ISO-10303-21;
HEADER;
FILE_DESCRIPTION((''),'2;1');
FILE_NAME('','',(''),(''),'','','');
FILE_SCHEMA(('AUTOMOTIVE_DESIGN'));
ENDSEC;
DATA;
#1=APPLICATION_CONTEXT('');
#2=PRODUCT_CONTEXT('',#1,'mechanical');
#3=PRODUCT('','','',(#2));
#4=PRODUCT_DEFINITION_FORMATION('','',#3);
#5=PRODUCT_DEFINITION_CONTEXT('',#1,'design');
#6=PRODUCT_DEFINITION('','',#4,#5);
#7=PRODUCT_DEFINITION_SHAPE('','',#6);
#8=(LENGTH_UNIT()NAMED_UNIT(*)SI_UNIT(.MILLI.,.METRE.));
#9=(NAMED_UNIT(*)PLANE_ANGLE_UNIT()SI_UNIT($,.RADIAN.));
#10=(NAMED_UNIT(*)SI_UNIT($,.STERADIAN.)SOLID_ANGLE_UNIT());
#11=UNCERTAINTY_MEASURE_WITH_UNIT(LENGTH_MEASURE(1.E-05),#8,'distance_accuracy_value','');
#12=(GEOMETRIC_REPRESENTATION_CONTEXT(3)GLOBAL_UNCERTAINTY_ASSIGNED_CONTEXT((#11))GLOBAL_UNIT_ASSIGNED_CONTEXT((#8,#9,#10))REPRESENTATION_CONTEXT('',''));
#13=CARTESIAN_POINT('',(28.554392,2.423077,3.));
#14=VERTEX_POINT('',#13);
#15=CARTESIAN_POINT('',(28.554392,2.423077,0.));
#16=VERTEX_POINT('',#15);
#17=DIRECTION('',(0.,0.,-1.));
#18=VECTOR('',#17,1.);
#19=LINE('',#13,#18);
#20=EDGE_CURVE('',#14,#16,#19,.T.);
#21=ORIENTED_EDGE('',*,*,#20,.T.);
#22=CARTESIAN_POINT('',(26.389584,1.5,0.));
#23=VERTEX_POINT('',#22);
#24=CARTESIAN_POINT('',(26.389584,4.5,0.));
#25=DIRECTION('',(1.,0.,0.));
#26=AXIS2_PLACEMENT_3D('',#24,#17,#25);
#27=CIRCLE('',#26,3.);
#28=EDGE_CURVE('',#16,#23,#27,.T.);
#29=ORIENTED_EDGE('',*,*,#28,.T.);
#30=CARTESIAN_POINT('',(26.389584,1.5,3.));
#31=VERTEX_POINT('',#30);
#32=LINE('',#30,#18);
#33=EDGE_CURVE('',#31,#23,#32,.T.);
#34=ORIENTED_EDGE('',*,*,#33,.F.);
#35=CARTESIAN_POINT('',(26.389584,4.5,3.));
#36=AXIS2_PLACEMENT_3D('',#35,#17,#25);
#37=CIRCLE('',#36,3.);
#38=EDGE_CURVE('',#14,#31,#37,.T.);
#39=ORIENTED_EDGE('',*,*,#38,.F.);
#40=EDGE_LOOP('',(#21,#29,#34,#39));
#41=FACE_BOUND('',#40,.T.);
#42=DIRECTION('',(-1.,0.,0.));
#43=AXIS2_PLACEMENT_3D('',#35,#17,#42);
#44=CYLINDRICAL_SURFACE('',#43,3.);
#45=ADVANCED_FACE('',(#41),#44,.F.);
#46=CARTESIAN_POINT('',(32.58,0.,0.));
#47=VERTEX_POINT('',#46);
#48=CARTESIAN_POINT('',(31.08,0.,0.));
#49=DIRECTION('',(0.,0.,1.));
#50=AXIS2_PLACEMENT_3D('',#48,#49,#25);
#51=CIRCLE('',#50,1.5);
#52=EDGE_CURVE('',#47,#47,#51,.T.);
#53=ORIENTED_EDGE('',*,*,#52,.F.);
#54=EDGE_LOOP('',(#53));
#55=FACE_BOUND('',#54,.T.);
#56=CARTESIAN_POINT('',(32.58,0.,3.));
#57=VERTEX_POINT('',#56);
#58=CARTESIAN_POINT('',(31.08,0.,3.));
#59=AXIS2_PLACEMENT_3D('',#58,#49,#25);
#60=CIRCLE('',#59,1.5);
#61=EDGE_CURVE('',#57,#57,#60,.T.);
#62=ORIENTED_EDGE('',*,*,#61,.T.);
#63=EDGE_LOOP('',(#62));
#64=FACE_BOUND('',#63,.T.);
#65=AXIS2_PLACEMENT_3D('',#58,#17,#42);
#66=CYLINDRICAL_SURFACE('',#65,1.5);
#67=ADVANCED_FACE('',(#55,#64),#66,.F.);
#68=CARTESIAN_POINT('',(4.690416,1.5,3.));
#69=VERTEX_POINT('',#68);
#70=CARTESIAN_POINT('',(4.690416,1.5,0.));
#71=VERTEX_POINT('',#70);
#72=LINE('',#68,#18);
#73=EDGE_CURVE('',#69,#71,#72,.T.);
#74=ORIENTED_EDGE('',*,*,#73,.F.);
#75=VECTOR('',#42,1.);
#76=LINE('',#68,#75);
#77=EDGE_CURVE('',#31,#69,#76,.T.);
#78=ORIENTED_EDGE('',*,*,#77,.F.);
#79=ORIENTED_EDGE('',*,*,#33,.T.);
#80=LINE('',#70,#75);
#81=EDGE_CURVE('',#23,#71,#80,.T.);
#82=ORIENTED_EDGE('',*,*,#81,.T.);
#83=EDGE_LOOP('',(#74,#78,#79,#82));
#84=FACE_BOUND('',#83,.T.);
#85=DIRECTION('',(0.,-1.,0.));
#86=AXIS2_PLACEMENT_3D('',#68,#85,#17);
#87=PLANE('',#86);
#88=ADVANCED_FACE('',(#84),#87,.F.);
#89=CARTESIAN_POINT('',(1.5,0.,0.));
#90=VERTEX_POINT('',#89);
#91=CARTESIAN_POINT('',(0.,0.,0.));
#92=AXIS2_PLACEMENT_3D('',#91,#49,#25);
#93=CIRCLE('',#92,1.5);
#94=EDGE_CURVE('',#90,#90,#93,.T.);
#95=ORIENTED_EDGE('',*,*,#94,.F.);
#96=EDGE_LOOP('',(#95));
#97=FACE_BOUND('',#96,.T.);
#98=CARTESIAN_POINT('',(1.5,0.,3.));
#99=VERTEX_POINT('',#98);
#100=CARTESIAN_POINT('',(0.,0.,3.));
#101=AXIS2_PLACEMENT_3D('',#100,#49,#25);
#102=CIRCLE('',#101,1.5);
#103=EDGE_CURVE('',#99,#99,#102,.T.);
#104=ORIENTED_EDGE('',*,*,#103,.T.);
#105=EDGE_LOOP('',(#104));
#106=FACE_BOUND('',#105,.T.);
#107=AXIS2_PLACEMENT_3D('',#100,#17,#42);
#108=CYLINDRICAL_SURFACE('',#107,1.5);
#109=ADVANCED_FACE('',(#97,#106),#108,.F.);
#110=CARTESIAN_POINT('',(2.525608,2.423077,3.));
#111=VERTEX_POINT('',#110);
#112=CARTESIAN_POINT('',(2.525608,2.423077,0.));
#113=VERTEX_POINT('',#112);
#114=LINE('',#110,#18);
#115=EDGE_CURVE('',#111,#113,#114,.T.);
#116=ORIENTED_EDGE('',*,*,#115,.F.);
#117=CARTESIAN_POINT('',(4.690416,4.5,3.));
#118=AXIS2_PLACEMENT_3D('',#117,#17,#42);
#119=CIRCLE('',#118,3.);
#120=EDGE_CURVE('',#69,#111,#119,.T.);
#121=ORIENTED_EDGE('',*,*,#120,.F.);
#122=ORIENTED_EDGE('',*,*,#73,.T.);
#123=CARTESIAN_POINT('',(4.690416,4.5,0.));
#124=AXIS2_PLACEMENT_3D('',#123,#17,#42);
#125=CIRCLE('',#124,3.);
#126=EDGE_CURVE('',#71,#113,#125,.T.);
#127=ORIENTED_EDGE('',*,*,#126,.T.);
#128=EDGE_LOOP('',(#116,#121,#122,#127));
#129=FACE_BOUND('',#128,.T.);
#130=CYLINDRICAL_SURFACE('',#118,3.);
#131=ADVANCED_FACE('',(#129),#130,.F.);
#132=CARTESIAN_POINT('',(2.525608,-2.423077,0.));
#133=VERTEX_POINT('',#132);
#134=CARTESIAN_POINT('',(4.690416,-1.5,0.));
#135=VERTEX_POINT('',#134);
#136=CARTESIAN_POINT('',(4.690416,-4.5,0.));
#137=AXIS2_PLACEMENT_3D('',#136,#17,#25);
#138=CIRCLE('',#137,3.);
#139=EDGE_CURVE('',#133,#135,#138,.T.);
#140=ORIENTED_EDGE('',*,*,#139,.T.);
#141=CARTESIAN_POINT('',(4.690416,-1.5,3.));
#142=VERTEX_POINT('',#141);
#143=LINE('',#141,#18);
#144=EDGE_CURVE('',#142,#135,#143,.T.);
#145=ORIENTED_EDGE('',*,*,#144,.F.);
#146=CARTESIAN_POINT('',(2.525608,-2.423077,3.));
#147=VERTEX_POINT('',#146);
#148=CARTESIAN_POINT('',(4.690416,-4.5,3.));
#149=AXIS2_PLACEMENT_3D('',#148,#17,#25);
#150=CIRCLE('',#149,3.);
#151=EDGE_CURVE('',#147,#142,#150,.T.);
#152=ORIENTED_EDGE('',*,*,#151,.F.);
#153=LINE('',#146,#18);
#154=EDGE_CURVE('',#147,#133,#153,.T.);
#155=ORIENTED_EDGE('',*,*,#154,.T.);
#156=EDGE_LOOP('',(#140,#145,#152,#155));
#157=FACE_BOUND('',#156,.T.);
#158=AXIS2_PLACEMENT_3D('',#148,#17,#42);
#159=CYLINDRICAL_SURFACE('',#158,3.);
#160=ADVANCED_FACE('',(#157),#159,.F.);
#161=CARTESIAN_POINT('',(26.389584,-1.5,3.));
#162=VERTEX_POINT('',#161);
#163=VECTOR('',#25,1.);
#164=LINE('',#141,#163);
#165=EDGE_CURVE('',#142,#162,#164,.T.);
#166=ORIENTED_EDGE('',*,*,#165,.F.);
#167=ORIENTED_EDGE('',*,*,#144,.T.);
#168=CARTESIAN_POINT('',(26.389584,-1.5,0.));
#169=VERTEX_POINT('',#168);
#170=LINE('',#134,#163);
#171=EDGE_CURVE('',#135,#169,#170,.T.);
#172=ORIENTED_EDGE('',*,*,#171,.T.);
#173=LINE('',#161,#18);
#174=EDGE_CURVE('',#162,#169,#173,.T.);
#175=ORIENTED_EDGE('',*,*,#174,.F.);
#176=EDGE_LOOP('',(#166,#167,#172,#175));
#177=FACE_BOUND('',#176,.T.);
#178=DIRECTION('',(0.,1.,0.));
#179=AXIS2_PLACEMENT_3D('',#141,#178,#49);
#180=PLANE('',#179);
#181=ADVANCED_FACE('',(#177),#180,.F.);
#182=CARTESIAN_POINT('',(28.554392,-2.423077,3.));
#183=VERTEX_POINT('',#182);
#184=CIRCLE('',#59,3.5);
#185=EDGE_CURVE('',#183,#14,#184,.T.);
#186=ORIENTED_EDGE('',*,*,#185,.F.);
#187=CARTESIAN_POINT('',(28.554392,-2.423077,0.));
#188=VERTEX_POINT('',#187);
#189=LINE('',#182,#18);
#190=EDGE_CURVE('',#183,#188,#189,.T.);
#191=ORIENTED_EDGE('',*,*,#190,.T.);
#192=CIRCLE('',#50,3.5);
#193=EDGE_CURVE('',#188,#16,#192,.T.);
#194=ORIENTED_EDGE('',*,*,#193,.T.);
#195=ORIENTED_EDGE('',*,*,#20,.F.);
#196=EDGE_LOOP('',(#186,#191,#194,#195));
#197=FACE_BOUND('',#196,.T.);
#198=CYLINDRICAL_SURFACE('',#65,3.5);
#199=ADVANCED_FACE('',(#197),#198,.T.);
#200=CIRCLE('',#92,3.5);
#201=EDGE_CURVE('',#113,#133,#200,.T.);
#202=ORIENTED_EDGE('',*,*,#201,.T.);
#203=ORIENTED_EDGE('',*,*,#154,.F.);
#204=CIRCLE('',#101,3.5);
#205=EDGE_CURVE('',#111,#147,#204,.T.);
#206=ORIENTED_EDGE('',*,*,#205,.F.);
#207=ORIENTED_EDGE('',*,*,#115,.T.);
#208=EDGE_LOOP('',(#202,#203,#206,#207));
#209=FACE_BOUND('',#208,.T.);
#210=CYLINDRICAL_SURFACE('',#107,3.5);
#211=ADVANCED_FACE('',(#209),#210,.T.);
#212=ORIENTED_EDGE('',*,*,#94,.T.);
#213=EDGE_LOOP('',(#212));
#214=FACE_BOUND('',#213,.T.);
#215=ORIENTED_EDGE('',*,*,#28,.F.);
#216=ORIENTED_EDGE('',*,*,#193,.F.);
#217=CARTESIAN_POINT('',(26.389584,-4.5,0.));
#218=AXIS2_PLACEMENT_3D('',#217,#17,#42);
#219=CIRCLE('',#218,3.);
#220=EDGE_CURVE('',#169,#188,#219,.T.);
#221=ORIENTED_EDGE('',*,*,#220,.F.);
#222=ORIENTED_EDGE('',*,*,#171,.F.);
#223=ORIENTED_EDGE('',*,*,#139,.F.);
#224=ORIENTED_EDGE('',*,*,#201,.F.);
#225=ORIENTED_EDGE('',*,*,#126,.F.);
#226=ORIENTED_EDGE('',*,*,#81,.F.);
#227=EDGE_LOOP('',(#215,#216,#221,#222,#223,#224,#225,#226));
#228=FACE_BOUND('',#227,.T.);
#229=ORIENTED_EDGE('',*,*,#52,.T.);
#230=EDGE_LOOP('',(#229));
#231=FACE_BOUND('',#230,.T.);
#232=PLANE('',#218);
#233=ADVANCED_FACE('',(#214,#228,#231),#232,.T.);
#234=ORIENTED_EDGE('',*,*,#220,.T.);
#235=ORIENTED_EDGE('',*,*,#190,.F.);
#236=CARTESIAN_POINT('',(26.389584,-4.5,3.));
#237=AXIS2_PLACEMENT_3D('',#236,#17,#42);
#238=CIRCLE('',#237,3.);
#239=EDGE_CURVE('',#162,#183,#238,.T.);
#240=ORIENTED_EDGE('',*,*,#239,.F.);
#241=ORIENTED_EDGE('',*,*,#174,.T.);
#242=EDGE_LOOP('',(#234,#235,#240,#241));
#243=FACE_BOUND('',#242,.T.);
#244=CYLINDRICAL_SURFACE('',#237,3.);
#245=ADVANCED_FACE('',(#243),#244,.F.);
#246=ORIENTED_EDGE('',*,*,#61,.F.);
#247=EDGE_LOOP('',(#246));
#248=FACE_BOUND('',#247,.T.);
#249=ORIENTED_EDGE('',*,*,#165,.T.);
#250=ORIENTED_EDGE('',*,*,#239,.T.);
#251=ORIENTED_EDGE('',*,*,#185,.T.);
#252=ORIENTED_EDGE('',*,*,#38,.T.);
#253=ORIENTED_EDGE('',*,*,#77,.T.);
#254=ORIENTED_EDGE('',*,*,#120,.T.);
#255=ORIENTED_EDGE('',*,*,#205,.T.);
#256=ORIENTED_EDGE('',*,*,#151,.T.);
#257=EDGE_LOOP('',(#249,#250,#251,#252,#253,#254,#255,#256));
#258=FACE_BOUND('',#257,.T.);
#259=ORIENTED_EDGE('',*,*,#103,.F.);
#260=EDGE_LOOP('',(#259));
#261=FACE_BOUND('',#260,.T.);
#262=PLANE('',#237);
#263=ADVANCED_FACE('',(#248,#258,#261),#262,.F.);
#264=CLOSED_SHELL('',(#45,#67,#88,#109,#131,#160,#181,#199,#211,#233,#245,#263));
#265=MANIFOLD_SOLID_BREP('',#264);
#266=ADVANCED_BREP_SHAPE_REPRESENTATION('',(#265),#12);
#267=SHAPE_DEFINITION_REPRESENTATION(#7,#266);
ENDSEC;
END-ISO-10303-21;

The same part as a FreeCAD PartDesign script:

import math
import FreeCAD as App
import Part
import Sketcher

doc = App.newDocument("Part")
body = doc.addObject("PartDesign::Body", "Body")

# Sketch on XY plane
sketch1 = body.newObject("Sketcher::SketchObject", "Sketch")
sketch1.AttachmentSupport = (doc.getObject("XY_Plane"), [""])
sketch1.MapMode = "FlatFace"
sketch1.addGeometry(Part.LineSegment(App.Vector(26.389584, 1.5, 0), App.Vector(4.690416, 1.5, 0)), False)
sketch1.addGeometry(Part.ArcOfCircle(Part.Circle(App.Vector(4.690416, 4.5, 0), App.Vector(0, 0, 1), 3), math.radians(-136.186939), math.radians(-90)), False)
sketch1.addGeometry(Part.ArcOfCircle(Part.Circle(App.Vector(0, 0, 0), App.Vector(0, 0, 1), 3.5), math.radians(43.813061), math.radians(316.186939)), False)
sketch1.addGeometry(Part.ArcOfCircle(Part.Circle(App.Vector(4.690416, -4.5, 0), App.Vector(0, 0, 1), 3), math.radians(90), math.radians(136.186939)), False)
sketch1.addGeometry(Part.LineSegment(App.Vector(4.690416, -1.5, 0), App.Vector(26.389584, -1.5, 0)), False)
sketch1.addGeometry(Part.ArcOfCircle(Part.Circle(App.Vector(26.389584, -4.5, 0), App.Vector(0, 0, 1), 3), math.radians(43.813061), math.radians(90)), False)
sketch1.addGeometry(Part.ArcOfCircle(Part.Circle(App.Vector(31.08, 0, 0), App.Vector(0, 0, 1), 3.5), math.radians(-136.186939), math.radians(136.186939)), False)
sketch1.addGeometry(Part.ArcOfCircle(Part.Circle(App.Vector(26.389584, 4.5, 0), App.Vector(0, 0, 1), 3), math.radians(-90), math.radians(-43.813061)), False)
sketch1.addGeometry(Part.Circle(App.Vector(31.08, 0, 0), App.Vector(0, 0, 1), 1.5), False)
sketch1.addGeometry(Part.Circle(App.Vector(0, 0, 0), App.Vector(0, 0, 1), 1.5), False)
sketch1.addConstraint(Sketcher.Constraint("Tangent", 0, 2, 1, 2))
sketch1.addConstraint(Sketcher.Constraint("Tangent", 1, 1, 2, 1))
sketch1.addConstraint(Sketcher.Constraint("Tangent", 2, 2, 3, 2))
sketch1.addConstraint(Sketcher.Constraint("Tangent", 3, 1, 4, 1))
sketch1.addConstraint(Sketcher.Constraint("Tangent", 4, 2, 5, 2))
sketch1.addConstraint(Sketcher.Constraint("Tangent", 5, 1, 6, 1))
sketch1.addConstraint(Sketcher.Constraint("Tangent", 6, 2, 7, 2))
sketch1.addConstraint(Sketcher.Constraint("Tangent", 7, 1, 0, 1))
sketch1.addConstraint(Sketcher.Constraint("Horizontal", 0))
sketch1.addConstraint(Sketcher.Constraint("Horizontal", 4))
sketch1.addConstraint(Sketcher.Constraint("Coincident", 2, 3, -1, 1))
sketch1.addConstraint(Sketcher.Constraint("Coincident", 9, 3, -1, 1))
sketch1.addConstraint(Sketcher.Constraint("Coincident", 8, 3, 6, 3))
sketch1.addConstraint(Sketcher.Constraint("Equal", 1, 3))
sketch1.addConstraint(Sketcher.Constraint("Equal", 3, 5))
sketch1.addConstraint(Sketcher.Constraint("Equal", 2, 6))
sketch1.addConstraint(Sketcher.Constraint("Equal", 5, 7))
sketch1.addConstraint(Sketcher.Constraint("Equal", 8, 9))
sketch1.addConstraint(Sketcher.Constraint("Symmetric", 5, 3, 7, 3, -1))
sketch1.addConstraint(Sketcher.Constraint("Diameter", 8, 3.0))
sketch1.addConstraint(Sketcher.Constraint("Radius", 1, 3.0))
sketch1.addConstraint(Sketcher.Constraint("Radius", 2, 3.5))
sketch1.addConstraint(Sketcher.Constraint("DistanceY", 3, 3, 1, 3, 9.0))
sketch1.addConstraint(Sketcher.Constraint("DistanceX", -1, 1, 6, 3, 31.08))
pad1 = body.newObject("PartDesign::Pad", "Pad")
pad1.Profile = sketch1
pad1.Length = 3

doc.recompute()
